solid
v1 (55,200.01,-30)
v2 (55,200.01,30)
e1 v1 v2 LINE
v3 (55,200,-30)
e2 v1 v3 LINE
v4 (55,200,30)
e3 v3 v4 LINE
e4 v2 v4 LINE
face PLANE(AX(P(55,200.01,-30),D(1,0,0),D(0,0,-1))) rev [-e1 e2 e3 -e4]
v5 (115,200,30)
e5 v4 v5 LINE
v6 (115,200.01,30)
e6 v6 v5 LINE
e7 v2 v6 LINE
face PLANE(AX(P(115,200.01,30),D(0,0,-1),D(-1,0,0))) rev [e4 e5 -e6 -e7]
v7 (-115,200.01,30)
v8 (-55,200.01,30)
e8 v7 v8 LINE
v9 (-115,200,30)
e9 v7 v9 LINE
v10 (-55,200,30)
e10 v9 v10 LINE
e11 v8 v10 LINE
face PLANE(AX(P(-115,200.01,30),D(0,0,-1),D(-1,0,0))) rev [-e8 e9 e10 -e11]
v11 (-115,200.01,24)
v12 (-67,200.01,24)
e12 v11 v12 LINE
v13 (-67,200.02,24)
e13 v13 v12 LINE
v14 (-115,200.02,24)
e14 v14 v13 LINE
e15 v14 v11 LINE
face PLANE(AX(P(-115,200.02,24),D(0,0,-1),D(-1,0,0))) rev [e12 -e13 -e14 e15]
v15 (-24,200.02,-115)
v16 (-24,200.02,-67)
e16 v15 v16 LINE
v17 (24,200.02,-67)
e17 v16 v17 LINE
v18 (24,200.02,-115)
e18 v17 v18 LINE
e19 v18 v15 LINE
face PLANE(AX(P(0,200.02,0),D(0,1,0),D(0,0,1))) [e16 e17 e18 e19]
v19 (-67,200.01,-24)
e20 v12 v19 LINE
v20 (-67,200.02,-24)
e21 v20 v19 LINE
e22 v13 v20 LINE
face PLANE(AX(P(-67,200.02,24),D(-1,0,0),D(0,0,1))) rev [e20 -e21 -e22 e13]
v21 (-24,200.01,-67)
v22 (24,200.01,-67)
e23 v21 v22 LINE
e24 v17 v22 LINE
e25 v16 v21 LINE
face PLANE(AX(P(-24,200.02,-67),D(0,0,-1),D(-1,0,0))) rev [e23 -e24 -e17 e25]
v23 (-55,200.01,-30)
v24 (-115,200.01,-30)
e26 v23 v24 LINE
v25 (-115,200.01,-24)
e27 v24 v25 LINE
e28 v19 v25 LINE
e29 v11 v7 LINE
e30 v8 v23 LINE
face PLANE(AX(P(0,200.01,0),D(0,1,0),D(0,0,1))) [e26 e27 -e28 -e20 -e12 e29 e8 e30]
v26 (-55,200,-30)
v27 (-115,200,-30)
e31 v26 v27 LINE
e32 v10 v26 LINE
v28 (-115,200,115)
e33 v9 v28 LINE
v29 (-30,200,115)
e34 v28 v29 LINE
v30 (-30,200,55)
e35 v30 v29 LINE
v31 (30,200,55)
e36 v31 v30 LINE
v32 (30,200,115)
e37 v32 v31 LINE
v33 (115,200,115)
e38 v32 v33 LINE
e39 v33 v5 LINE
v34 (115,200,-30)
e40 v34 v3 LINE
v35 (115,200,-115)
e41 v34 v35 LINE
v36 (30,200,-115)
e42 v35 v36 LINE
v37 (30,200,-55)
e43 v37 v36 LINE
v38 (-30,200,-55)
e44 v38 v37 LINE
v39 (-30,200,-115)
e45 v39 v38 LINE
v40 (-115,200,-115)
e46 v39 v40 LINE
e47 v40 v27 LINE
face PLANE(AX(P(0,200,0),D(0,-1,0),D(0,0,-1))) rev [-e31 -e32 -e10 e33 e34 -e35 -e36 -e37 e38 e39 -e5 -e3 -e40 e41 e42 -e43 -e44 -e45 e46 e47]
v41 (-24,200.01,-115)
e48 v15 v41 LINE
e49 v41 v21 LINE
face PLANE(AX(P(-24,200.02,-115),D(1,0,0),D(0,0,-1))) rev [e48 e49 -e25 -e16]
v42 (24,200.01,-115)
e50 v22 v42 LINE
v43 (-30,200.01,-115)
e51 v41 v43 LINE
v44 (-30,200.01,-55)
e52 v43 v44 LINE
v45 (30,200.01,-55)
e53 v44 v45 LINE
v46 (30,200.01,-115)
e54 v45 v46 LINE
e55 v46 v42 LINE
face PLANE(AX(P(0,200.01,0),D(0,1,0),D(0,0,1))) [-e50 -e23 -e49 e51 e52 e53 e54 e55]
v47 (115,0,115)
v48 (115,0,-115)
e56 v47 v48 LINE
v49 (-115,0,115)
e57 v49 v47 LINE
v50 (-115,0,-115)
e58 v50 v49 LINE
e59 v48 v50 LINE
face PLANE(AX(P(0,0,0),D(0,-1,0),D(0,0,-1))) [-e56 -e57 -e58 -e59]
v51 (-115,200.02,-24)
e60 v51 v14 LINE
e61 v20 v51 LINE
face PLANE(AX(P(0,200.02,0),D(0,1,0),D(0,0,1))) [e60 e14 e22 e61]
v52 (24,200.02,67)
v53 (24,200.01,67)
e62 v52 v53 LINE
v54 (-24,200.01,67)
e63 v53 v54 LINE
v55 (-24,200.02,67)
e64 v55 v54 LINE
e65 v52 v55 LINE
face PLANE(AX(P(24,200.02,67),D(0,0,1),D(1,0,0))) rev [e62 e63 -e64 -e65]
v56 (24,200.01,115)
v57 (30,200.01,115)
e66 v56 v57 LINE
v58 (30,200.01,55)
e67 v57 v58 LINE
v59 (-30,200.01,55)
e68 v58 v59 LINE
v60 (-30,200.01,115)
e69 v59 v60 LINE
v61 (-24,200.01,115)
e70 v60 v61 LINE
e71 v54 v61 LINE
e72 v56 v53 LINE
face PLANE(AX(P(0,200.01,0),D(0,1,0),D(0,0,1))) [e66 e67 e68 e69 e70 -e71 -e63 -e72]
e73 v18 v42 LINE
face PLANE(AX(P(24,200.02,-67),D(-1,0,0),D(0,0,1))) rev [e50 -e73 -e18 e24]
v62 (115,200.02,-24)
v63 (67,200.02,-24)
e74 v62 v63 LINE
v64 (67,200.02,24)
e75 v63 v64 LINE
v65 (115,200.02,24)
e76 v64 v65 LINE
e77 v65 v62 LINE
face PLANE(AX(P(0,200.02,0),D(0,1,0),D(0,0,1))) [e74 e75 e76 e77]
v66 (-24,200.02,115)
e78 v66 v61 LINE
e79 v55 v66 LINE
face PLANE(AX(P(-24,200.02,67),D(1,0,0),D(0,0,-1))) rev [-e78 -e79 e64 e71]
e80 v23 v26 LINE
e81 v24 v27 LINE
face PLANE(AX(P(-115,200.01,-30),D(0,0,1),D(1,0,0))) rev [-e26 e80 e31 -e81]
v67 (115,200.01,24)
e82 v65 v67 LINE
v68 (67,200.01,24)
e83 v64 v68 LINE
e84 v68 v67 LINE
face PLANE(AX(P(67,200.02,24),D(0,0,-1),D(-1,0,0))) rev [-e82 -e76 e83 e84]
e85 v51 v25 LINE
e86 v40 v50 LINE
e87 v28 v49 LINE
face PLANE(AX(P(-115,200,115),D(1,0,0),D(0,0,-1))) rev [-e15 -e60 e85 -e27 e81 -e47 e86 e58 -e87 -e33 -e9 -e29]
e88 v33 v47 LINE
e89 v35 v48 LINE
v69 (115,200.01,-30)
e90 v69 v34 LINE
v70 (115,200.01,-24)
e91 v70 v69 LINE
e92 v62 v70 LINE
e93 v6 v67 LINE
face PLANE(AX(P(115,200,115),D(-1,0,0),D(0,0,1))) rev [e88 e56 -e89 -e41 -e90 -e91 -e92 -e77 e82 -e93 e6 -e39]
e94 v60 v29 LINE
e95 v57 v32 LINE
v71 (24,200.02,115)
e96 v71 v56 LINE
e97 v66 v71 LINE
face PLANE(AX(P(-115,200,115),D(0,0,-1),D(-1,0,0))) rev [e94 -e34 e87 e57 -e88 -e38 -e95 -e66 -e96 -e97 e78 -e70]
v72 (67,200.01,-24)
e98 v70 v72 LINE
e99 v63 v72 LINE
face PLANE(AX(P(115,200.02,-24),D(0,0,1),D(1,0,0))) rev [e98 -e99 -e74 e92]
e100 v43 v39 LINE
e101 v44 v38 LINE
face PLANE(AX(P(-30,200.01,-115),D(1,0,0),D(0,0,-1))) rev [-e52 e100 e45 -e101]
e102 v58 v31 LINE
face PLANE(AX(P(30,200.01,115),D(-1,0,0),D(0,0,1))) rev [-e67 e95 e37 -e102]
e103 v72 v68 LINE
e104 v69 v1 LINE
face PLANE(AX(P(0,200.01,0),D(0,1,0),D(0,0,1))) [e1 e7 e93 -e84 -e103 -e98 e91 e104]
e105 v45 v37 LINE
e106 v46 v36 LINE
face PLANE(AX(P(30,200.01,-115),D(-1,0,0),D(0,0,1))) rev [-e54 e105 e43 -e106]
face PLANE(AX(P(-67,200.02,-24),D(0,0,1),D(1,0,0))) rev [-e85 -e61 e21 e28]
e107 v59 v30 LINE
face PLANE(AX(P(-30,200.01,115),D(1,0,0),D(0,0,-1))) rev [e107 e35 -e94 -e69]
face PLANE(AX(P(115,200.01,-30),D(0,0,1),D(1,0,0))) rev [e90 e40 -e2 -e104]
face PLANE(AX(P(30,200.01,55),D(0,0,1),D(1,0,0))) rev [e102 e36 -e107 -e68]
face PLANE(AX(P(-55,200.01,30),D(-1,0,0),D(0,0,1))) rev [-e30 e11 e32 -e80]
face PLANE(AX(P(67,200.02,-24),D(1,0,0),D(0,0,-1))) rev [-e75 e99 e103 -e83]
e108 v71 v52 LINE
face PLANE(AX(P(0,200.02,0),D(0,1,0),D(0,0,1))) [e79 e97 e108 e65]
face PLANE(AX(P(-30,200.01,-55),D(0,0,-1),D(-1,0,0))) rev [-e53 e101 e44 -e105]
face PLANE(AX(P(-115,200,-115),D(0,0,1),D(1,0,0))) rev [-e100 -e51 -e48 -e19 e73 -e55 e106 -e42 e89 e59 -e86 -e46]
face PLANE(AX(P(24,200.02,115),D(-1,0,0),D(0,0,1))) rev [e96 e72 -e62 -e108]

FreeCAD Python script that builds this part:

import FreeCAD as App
import Part
import Sketcher
from FreeCAD import Vector


def add_polygon(sketch, points):
    """Adds a closed chain of lines whose ends are joined by coincident constraints."""
    first, n = sketch.GeometryCount, len(points)
    for a, b in zip(points, points[1:] + points[:1]):
        sketch.addGeometry(Part.LineSegment(App.Vector(*a, 0), App.Vector(*b, 0)), False)
    for i in range(n):
        sketch.addConstraint(Sketcher.Constraint("Coincident", first + i, 2, first + (i + 1) % n, 1))

doc = App.newDocument("Part")
params = doc.addObject("Spreadsheet::Sheet", "Params")
for row, (alias, value) in enumerate([
    ("sketch1_width", "230 mm"),
    ("pad1_length", "200 mm"),
    ("sketch2_width", "60 mm"),
    ("pad2_length", "0.01 mm"),
    ("sketch3_width", "48 mm"),
    ("pad3_length", "0.01 mm"),
], start=1):
    params.set(f"A{row}", alias)
    params.set(f"B{row}", "=" + value)
    params.setAlias(f"B{row}", alias)

body = doc.addObject("PartDesign::Body", "Body")

sketch1 = body.newObject("Sketcher::SketchObject", "Sketch")
sketch1.AttachmentSupport = (doc.getObject("XZ_Plane"), [""])
sketch1.MapMode = "FlatFace"
add_polygon(sketch1, [(-115, -115), (-115, 115), (115, 115), (115, -115)])
sketch1.addConstraint([
    Sketcher.Constraint("Vertical", 0),
    Sketcher.Constraint("Horizontal", 1),
    Sketcher.Constraint("Vertical", 2),
    Sketcher.Constraint("Horizontal", 3),
    Sketcher.Constraint("Symmetric", 0, 2, 2, 2, -1, 1),
    Sketcher.Constraint("Equal", 3, 0),
    Sketcher.Constraint("DistanceX", 1, 1, 1, 2, 230.0),
])
sketch1.setExpression("Constraints[10]", "Params.sketch1_width")
pad1 = body.newObject("PartDesign::Pad", "Pad")
pad1.Profile = sketch1
pad1.setExpression("Length", "Params.pad1_length")
pad1.Reversed = True

sketch2 = body.newObject("Sketcher::SketchObject", "Sketch001")
sketch2.AttachmentSupport = (doc.getObject("XZ_Plane"), [""])
sketch2.MapMode = "FlatFace"
sketch2.AttachmentOffset = App.Placement(Vector(0, 0, -200), App.Rotation())
add_polygon(sketch2, [(55, -30), (55, 30), (115, 30), (115, -30)])
add_polygon(sketch2, [(-30, -115), (-30, -55), (30, -55), (30, -115)])
add_polygon(sketch2, [(-30, 55), (-30, 115), (30, 115), (30, 55)])
add_polygon(sketch2, [(-115, -30), (-115, 30), (-55, 30), (-55, -30)])
sketch2.addConstraint([
    Sketcher.Constraint("Vertical", 0),
    Sketcher.Constraint("Horizontal", 1),
    Sketcher.Constraint("Vertical", 2),
    Sketcher.Constraint("Horizontal", 3),
    Sketcher.Constraint("Vertical", 4),
    Sketcher.Constraint("Horizontal", 5),
    Sketcher.Constraint("Vertical", 6),
    Sketcher.Constraint("Horizontal", 7),
    Sketcher.Constraint("Vertical", 8),
    Sketcher.Constraint("Horizontal", 9),
    Sketcher.Constraint("Vertical", 10),
    Sketcher.Constraint("Horizontal", 11),
    Sketcher.Constraint("Vertical", 12),
    Sketcher.Constraint("Horizontal", 13),
    Sketcher.Constraint("Vertical", 14),
    Sketcher.Constraint("Horizontal", 15),
    Sketcher.Constraint("Symmetric", 6, 2, 8, 2, -1, 1),
    Sketcher.Constraint("Symmetric", 4, 2, 10, 2, -1, 1),
    Sketcher.Constraint("Symmetric", 2, 2, 12, 2, -1, 1),
    Sketcher.Constraint("Symmetric", 0, 2, 14, 2, -1, 1),
    Sketcher.Constraint("Horizontal", 1, 2, 12, 2),
    Sketcher.Constraint("Vertical", 7, 2, 8, 2),
    Sketcher.Constraint("Equal", 3, 5),
    Sketcher.Constraint("Equal", 15, 0),
    Sketcher.Constraint("Equal", 2, 4),
    Sketcher.Constraint("DistanceX", 1, 1, 1, 2, 60.0),
    Sketcher.Constraint("DistanceX", -1, 1, 0, 2, 55.0),
    Sketcher.Constraint("DistanceY", 4, 2, -1, 1, 55.0),
])
sketch2.setExpression("Constraints[41]", "Params.sketch2_width")
pad2 = body.newObject("PartDesign::Pad", "Pad001")
pad2.Profile = sketch2
pad2.setExpression("Length", "Params.pad2_length")
pad2.Reversed = True

sketch3 = body.newObject("Sketcher::SketchObject", "Sketch002")
sketch3.AttachmentSupport = (doc.getObject("XZ_Plane"), [""])
sketch3.MapMode = "FlatFace"
sketch3.AttachmentOffset = App.Placement(Vector(0, 0, -200.01), App.Rotation())
add_polygon(sketch3, [(-24, -115), (-24, -67), (24, -67), (24, -115)])
add_polygon(sketch3, [(67, -24), (67, 24), (115, 24), (115, -24)])
add_polygon(sketch3, [(-24, 67), (-24, 115), (24, 115), (24, 67)])
add_polygon(sketch3, [(-115, -24), (-115, 24), (-67, 24), (-67, -24)])
sketch3.addConstraint([
    Sketcher.Constraint("Vertical", 0),
    Sketcher.Constraint("Horizontal", 1),
    Sketcher.Constraint("Vertical", 2),
    Sketcher.Constraint("Horizontal", 3),
    Sketcher.Constraint("Vertical", 4),
    Sketcher.Constraint("Horizontal", 5),
    Sketcher.Constraint("Vertical", 6),
    Sketcher.Constraint("Horizontal", 7),
    Sketcher.Constraint("Vertical", 8),
    Sketcher.Constraint("Horizontal", 9),
    Sketcher.Constraint("Vertical", 10),
    Sketcher.Constraint("Horizontal", 11),
    Sketcher.Constraint("Vertical", 12),
    Sketcher.Constraint("Horizontal", 13),
    Sketcher.Constraint("Vertical", 14),
    Sketcher.Constraint("Horizontal", 15),
    Sketcher.Constraint("Symmetric", 2, 2, 8, 2, -1, 1),
    Sketcher.Constraint("Symmetric", 0, 2, 10, 2, -1, 1),
    Sketcher.Constraint("Symmetric", 6, 2, 12, 2, -1, 1),
    Sketcher.Constraint("Symmetric", 4, 2, 14, 2, -1, 1),
    Sketcher.Constraint("Horizontal", 5, 2, 12, 2),
    Sketcher.Constraint("Vertical", 3, 2, 8, 2),
    Sketcher.Constraint("Equal", 3, 5),
    Sketcher.Constraint("Equal", 15, 0),
    Sketcher.Constraint("Equal", 2, 4),
    Sketcher.Constraint("DistanceX", 1, 1, 1, 2, 48.0),
    Sketcher.Constraint("DistanceY", 0, 2, -1, 1, 67.0),
    Sketcher.Constraint("DistanceX", -1, 1, 4, 2, 67.0),
])
sketch3.setExpression("Constraints[41]", "Params.sketch3_width")
pad3 = body.newObject("PartDesign::Pad", "Pad002")
pad3.Profile = sketch3
pad3.setExpression("Length", "Params.pad3_length")
pad3.Reversed = True

doc.recompute()
